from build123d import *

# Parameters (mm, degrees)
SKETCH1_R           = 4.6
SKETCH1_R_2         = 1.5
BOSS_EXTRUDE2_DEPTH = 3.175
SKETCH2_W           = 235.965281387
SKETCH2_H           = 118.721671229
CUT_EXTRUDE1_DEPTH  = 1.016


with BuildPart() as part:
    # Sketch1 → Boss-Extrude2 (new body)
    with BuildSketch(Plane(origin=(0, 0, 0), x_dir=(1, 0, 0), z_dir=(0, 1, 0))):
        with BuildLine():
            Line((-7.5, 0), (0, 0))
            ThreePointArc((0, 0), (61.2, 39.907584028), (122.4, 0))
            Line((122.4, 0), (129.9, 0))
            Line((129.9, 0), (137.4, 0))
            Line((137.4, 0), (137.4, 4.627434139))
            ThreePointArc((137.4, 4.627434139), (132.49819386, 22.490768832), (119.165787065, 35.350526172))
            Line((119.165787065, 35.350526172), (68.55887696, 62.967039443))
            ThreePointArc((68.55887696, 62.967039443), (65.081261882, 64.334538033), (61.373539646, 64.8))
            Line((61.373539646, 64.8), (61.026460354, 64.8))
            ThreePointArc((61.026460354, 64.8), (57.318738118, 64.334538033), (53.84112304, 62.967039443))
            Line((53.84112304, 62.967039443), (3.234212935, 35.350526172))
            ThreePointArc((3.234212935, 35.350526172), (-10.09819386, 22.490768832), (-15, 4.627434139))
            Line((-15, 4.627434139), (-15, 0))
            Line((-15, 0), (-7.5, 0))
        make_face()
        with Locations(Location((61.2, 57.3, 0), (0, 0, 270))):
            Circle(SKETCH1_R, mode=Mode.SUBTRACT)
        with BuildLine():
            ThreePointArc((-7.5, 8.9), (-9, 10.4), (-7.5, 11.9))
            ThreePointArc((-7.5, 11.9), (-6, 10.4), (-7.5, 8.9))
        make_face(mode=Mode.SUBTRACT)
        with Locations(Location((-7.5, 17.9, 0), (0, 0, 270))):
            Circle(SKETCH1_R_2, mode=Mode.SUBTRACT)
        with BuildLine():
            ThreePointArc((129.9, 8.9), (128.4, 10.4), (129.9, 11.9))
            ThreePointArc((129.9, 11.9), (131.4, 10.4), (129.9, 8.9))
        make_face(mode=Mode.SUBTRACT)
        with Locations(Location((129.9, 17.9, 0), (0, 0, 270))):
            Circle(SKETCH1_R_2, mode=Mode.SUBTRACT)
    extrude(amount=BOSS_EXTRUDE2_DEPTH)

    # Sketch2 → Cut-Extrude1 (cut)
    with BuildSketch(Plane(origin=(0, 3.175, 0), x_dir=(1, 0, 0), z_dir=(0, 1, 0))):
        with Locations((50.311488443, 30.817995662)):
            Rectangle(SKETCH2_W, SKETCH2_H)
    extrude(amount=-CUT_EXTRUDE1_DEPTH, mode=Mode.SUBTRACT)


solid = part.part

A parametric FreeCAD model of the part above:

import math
import FreeCAD as App
import Part
import Sketcher
from FreeCAD import Vector
Q = App.Units.Quantity


def add_polygon(sketch, points):
    """Adds a closed chain of lines whose ends are joined by coincident constraints."""
    first, n = sketch.GeometryCount, len(points)
    for a, b in zip(points, points[1:] + points[:1]):
        sketch.addGeometry(Part.LineSegment(App.Vector(*a, 0), App.Vector(*b, 0)), False)
    for i in range(n):
        sketch.addConstraint(Sketcher.Constraint("Coincident", first + i, 2, first + (i + 1) % n, 1))

doc = App.newDocument("Part")
body = doc.addObject("PartDesign::Body", "Body")

# Sketch on XZ plane
sketch1 = doc.addObject("Sketcher::SketchObject", "Sketch")
body.addObject(sketch1)
sketch1.AttachmentSupport = (doc.XZ_Plane, [""])
sketch1.MapMode = "FlatFace"
sketch1.addGeometry([
    Part.ArcOfCircle(Part.Circle(Vector(61.2, 26.97, 0), Vector(0, 0, 1), 66.88), math.radians(-156), math.radians(-24)),  # 0
    Part.LineSegment(Vector(122.4, 0, 0), Vector(137.4, 0, 0)),  # 1
    Part.LineSegment(Vector(137.4, 0, 0), Vector(137.4, -4.63, 0)),  # 2
    Part.ArcOfCircle(Part.Circle(Vector(102.4, -4.63, 0), Vector(0, 0, 1), 35), math.radians(-61), math.radians(0)),  # 3
    Part.LineSegment(Vector(119.17, -35.35, 0), Vector(68.56, -62.97, 0)),  # 4
    Part.ArcOfCircle(Part.Circle(Vector(61.37, -49.8, 0), Vector(0, 0, 1), 15), math.radians(-90), math.radians(-61)),  # 5
    Part.LineSegment(Vector(61.37, -64.8, 0), Vector(61.03, -64.8, 0)),  # 6
    Part.ArcOfCircle(Part.Circle(Vector(61.03, -49.8, 0), Vector(0, 0, 1), 15), math.radians(-119), math.radians(-90)),  # 7
    Part.LineSegment(Vector(53.84, -62.97, 0), Vector(3.23, -35.35, 0)),  # 8
    Part.ArcOfCircle(Part.Circle(Vector(20, -4.63, 0), Vector(0, 0, 1), 35), math.radians(180), math.radians(241)),  # 9
    Part.LineSegment(Vector(-15, -4.63, 0), Vector(-15, 0, 0)),  # 10
    Part.LineSegment(Vector(-15, 0, 0), Vector(0, 0, 0)),  # 11
    Part.Circle(Vector(-7.5, -10.4, 0), Vector(0, 0, 1), 1.5),  # 12
    Part.Circle(Vector(-7.5, -17.9, 0), Vector(0, 0, 1), 1.5),  # 13
    Part.Circle(Vector(129.9, -10.4, 0), Vector(0, 0, 1), 1.5),  # 14
    Part.Circle(Vector(129.9, -17.9, 0), Vector(0, 0, 1), 1.5),  # 15
    Part.Circle(Vector(61.2, -57.3, 0), Vector(0, 0, 1), 4.6),  # 16
], False)
sketch1.addConstraint([
    Sketcher.Constraint("Coincident", 0, 2, 1, 1),
    Sketcher.Constraint("Coincident", 1, 2, 2, 1),
    Sketcher.Constraint("Tangent", 2, 2, 3, 2),
    Sketcher.Constraint("Tangent", 3, 1, 4, 1),
    Sketcher.Constraint("Tangent", 4, 2, 5, 2),
    Sketcher.Constraint("Tangent", 5, 1, 6, 1),
    Sketcher.Constraint("Tangent", 6, 2, 7, 2),
    Sketcher.Constraint("Tangent", 7, 1, 8, 1),
    Sketcher.Constraint("Tangent", 8, 2, 9, 2),
    Sketcher.Constraint("Tangent", 9, 1, 10, 1),
    Sketcher.Constraint("Coincident", 10, 2, 11, 1),
    Sketcher.Constraint("Coincident", 11, 2, 0, 1),
    Sketcher.Constraint("Horizontal", 1),
    Sketcher.Constraint("Vertical", 2),
    Sketcher.Constraint("Horizontal", 6),
    Sketcher.Constraint("Vertical", 10),
    Sketcher.Constraint("Horizontal", 11),
    Sketcher.Constraint("Coincident", 11, 2, -1, 1),
    Sketcher.Constraint("Equal", 5, 7),
    Sketcher.Constraint("Equal", 3, 9),
    Sketcher.Constraint("Equal", 12, 13),
    Sketcher.Constraint("Equal", 13, 14),
    Sketcher.Constraint("Equal", 14, 15),
    Sketcher.Constraint("PointOnObject", 0, 2, -1),
    Sketcher.Constraint("Horizontal", 3, 3, 9, 3),
    Sketcher.Constraint("Horizontal", 12, 3, 14, 3),
    Sketcher.Constraint("Horizontal", 13, 3, 15, 3),
    Sketcher.Constraint("Horizontal", 4, 2, 7, 1),
    Sketcher.Constraint("Vertical", 12, 3, 13, 3),
    Sketcher.Constraint("Vertical", 14, 3, 15, 3),
    Sketcher.Constraint("Vertical", 0, 3, 16, 3),
    Sketcher.Constraint("Equal", 1, 11),
    Sketcher.Constraint("Diameter", 12, Q("3 mm")),
    Sketcher.Constraint("Radius", 3, Q("35 mm")),
    Sketcher.Constraint("Radius", 5, Q("15 mm")),
    Sketcher.Constraint("Diameter", 16, Q("9.2 mm")),
    Sketcher.Constraint("DistanceX", 1, 1, 1, 2, Q("15 mm")),
    Sketcher.Constraint("DistanceX", -1, 1, 0, 3, Q("61.2 mm")),
    Sketcher.Constraint("DistanceY", 5, 3, -1, 1, Q("49.8 mm")),
    Sketcher.Constraint("DistanceX", 12, 3, -1, 1, Q("7.5 mm")),
    Sketcher.Constraint("DistanceY", 12, 3, -1, 1, Q("10.4 mm")),
    Sketcher.Constraint("DistanceY", 13, 3, -1, 1, Q("17.9 mm")),
    Sketcher.Constraint("DistanceX", -1, 1, 14, 3, Q("129.9 mm")),
    Sketcher.Constraint("DistanceY", 16, 3, -1, 1, Q("57.3 mm")),
    Sketcher.Constraint("Radius", 0, Q("66.880211 mm")),
    Sketcher.Constraint("DistanceX", 6, 2, 6, 1, Q("0.347079 mm")),
    Sketcher.Constraint("Distance", 4, Q("57.65181 mm")),
])
pad1 = doc.addObject("PartDesign::Pad", "Pad")
body.addObject(pad1)
pad1.Profile = sketch1
pad1.Length = 3.175
pad1.Reversed = True

# Sketch on XZ plane
sketch2 = doc.addObject("Sketcher::SketchObject", "Sketch001")
body.addObject(sketch2)
sketch2.AttachmentSupport = (doc.XZ_Plane, [""])
sketch2.MapMode = "FlatFace"
sketch2.AttachmentOffset = App.Placement(Vector(0, 0, -3.175), App.Rotation())
add_polygon(sketch2, [(-68, -90), (-68, 29), (168, 29), (168, -90)])  # lines 0-3
sketch2.addConstraint([
    Sketcher.Constraint("Vertical", 0),
    Sketcher.Constraint("Horizontal", 1),
    Sketcher.Constraint("Vertical", 2),
    Sketcher.Constraint("Horizontal", 3),
    Sketcher.Constraint("DistanceX", 1, 1, 1, 2, Q("235.965281 mm")),
    Sketcher.Constraint("DistanceY", 0, 1, 0, 2, Q("118.721671 mm")),
    Sketcher.Constraint("DistanceY", -1, 1, 0, 2, Q("28.54284 mm")),
    Sketcher.Constraint("DistanceX", -1, 1, 1, 2, Q("168.294129 mm")),
])
pocket1 = doc.addObject("PartDesign::Pocket", "Pocket")
body.addObject(pocket1)
pocket1.Profile = sketch2
pocket1.Length = 1.016
pocket1.Reversed = True

doc.recompute()
